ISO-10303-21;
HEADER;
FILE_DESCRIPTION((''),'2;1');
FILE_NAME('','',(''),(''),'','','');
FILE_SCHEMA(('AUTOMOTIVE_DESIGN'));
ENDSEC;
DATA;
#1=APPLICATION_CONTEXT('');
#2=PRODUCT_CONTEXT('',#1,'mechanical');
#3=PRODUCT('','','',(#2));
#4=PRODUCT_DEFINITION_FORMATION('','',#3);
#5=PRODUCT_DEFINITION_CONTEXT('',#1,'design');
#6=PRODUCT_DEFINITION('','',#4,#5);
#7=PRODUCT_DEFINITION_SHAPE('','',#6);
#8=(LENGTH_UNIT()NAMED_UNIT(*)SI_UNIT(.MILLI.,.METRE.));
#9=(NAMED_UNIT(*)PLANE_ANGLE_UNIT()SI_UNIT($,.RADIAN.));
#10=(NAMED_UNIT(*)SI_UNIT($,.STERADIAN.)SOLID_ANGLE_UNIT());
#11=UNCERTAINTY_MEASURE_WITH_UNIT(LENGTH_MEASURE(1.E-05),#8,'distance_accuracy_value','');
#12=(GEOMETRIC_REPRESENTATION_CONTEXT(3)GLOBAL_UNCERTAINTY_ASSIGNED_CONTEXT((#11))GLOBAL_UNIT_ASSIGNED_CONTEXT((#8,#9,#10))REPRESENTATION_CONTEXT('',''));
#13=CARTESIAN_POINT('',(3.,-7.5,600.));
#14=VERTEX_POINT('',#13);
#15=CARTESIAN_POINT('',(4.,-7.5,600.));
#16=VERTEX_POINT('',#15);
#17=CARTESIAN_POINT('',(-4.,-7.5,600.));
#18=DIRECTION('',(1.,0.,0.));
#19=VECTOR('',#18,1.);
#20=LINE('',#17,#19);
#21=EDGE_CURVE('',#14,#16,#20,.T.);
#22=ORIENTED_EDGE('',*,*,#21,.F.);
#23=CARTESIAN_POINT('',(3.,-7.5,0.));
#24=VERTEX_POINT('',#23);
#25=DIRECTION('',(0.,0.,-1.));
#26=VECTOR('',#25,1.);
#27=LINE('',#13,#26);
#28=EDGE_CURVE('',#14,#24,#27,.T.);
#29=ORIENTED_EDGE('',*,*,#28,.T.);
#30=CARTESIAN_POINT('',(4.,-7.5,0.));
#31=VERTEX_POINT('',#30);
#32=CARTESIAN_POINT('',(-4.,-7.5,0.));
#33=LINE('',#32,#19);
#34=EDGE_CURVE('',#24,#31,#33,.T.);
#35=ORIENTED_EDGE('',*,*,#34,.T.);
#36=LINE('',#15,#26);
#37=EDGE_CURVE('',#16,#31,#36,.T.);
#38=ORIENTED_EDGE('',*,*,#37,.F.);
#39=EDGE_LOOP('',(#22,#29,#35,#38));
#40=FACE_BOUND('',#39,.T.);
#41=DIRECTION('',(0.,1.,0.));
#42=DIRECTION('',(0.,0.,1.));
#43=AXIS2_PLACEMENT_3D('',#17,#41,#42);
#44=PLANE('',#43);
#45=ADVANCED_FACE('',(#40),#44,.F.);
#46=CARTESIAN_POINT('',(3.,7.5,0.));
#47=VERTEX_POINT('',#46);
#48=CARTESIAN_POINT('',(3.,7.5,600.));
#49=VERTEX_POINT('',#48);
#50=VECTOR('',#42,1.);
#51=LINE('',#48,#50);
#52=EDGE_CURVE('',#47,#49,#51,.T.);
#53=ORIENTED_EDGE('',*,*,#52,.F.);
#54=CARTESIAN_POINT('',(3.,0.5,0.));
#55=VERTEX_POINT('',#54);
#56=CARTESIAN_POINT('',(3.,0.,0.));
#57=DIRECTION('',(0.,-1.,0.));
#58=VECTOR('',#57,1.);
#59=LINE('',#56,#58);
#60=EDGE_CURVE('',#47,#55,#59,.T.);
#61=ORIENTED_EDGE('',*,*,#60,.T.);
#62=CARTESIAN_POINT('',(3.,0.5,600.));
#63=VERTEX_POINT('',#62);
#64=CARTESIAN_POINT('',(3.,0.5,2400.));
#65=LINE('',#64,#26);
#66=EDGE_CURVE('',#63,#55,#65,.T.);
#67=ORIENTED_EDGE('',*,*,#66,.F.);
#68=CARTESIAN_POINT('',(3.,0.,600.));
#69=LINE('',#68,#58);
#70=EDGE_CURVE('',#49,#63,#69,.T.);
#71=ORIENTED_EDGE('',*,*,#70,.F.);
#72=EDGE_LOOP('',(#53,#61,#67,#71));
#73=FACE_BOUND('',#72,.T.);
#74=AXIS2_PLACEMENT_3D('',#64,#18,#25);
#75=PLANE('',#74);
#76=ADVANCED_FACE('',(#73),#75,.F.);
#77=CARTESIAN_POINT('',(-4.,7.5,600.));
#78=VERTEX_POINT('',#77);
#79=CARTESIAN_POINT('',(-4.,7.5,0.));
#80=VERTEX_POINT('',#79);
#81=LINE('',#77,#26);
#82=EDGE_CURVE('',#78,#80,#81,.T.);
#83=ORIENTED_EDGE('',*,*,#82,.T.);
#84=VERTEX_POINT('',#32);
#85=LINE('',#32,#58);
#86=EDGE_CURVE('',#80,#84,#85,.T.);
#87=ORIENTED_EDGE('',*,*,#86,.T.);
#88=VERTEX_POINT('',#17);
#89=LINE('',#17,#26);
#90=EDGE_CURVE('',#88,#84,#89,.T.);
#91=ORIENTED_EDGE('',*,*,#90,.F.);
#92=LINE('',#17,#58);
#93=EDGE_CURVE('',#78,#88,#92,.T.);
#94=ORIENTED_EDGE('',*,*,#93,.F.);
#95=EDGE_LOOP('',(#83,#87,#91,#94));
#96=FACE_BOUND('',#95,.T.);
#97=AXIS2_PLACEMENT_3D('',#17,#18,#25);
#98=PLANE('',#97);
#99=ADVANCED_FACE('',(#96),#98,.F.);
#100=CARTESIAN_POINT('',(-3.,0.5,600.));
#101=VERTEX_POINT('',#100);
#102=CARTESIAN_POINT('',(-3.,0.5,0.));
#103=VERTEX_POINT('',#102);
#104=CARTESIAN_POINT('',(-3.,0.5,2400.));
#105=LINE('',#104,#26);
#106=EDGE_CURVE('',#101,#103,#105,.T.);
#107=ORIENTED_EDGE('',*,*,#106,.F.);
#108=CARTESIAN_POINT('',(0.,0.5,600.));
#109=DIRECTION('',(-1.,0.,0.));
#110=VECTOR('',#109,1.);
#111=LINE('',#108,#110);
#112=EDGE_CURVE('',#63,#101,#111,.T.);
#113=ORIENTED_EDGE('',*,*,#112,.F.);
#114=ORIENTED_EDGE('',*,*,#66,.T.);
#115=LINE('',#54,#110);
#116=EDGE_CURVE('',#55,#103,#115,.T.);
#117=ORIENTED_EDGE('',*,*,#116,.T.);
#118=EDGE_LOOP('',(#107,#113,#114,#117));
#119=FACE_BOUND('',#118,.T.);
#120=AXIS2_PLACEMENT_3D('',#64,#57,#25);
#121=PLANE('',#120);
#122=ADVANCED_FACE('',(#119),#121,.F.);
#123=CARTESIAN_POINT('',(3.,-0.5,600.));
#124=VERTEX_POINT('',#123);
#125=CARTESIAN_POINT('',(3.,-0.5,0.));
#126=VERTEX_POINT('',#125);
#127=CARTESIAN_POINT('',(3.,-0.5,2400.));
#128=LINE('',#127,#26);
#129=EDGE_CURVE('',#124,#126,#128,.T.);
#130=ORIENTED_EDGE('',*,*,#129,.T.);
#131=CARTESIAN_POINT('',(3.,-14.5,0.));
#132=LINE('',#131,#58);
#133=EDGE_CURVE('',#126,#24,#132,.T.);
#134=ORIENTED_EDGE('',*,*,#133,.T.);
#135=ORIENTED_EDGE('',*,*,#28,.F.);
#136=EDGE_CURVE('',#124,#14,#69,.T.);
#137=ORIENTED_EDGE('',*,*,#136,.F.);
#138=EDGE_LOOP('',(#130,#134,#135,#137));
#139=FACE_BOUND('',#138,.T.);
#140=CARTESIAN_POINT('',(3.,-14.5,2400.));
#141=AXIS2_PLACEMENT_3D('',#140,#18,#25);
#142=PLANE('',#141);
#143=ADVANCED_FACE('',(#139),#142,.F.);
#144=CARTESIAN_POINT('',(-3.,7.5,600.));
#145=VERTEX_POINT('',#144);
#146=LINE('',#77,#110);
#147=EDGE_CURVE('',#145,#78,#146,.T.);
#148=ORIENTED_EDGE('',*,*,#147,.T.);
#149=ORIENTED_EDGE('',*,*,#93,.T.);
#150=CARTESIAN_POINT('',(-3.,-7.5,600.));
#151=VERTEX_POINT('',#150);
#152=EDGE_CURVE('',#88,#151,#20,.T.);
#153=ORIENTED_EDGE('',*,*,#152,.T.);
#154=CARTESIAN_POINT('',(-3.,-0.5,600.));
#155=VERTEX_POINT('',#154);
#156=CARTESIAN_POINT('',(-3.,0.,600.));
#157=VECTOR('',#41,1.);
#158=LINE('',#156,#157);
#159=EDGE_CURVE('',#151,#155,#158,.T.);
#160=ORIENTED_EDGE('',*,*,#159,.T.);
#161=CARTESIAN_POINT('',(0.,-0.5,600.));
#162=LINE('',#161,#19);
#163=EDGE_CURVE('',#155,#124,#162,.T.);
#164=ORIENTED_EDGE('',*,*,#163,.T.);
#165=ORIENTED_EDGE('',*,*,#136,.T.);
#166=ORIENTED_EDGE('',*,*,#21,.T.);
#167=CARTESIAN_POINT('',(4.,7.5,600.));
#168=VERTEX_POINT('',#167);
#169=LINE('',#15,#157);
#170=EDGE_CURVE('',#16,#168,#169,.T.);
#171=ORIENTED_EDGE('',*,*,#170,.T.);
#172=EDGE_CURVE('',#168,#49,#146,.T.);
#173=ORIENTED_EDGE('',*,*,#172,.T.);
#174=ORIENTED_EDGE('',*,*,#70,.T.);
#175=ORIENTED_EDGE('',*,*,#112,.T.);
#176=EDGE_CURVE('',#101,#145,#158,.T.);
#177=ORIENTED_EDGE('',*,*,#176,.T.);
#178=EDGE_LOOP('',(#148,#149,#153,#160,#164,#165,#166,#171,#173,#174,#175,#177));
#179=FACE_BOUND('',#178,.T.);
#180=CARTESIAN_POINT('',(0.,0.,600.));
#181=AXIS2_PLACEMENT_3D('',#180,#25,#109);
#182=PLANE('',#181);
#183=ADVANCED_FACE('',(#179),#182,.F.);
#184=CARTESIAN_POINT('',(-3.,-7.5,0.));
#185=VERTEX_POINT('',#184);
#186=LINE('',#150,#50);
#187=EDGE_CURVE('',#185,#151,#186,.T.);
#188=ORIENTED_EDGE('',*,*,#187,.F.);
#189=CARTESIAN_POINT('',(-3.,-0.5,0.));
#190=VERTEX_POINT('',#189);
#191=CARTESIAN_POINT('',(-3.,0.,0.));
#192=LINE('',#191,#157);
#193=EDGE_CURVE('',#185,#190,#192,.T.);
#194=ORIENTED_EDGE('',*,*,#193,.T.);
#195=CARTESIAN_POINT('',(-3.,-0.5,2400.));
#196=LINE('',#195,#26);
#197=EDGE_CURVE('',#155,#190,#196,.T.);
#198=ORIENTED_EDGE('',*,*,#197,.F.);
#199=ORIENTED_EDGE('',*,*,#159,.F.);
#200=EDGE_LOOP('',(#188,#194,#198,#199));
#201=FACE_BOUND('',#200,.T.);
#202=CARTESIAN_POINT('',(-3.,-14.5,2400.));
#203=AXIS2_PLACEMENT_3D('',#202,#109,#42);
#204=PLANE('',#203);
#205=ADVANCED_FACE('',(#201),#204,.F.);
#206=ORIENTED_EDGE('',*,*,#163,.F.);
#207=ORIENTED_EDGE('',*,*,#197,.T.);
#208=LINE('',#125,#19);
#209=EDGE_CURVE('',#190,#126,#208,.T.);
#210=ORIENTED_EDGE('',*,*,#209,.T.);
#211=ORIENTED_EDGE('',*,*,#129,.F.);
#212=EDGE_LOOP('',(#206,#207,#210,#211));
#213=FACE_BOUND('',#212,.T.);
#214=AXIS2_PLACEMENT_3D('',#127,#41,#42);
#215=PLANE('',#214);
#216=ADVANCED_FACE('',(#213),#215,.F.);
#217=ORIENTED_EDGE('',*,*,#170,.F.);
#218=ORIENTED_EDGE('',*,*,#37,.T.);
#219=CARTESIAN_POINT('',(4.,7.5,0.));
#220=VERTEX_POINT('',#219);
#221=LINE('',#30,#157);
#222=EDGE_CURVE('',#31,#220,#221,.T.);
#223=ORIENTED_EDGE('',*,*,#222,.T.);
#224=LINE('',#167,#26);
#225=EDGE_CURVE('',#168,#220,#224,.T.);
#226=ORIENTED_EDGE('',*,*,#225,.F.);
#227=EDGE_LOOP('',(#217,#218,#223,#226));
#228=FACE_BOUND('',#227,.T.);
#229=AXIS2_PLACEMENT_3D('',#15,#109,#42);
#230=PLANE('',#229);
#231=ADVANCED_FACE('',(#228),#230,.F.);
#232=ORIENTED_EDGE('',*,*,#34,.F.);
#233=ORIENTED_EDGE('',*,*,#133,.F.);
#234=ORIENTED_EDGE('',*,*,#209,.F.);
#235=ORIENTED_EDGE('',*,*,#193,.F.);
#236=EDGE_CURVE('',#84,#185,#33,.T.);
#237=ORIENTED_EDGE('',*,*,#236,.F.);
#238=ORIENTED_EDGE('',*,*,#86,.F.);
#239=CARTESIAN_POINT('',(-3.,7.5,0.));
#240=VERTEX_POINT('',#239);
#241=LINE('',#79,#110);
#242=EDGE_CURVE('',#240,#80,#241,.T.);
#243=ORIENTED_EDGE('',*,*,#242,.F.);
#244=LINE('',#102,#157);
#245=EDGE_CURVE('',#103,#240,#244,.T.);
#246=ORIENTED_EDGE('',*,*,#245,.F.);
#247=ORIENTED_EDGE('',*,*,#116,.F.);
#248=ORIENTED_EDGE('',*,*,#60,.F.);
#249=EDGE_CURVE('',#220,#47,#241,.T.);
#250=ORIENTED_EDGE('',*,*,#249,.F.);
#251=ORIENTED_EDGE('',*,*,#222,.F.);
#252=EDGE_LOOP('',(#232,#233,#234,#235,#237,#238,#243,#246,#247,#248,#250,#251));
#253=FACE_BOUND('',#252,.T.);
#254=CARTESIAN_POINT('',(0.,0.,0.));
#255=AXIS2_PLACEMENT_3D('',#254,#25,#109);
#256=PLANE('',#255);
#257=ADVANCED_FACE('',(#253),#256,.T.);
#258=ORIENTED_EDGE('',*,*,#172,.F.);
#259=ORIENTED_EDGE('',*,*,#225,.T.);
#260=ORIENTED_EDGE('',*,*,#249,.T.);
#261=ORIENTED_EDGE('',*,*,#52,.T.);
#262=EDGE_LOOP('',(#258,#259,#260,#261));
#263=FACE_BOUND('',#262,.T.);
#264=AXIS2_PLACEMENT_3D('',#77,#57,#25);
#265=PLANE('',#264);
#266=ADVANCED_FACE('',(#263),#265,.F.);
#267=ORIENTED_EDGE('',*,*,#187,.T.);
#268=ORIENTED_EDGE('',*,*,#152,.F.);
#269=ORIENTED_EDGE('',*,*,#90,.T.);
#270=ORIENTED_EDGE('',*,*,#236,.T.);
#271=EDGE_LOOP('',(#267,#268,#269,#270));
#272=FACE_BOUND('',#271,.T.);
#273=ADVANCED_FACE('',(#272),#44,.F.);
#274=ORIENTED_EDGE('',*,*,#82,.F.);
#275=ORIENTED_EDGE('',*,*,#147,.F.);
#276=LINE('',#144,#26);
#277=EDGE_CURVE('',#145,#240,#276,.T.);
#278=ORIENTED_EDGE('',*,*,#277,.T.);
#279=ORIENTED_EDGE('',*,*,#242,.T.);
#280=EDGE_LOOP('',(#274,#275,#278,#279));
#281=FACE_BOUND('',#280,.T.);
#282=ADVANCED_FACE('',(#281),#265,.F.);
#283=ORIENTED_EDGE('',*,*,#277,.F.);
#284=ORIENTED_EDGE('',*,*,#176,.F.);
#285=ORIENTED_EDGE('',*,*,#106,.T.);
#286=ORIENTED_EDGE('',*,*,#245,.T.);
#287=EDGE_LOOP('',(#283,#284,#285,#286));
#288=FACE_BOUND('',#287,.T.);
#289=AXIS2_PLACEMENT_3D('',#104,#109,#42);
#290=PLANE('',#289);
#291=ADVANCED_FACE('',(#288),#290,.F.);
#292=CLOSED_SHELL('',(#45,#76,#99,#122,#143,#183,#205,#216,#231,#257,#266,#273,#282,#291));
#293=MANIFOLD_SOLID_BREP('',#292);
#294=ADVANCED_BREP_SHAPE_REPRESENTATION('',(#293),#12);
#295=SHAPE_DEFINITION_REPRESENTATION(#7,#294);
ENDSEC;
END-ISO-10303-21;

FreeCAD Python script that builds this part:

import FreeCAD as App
import Part
import Sketcher

doc = App.newDocument("Part")
body = doc.addObject("PartDesign::Body", "Body")

sketch1 = body.newObject("Sketcher::SketchObject", "Sketch")
sketch1.AttachmentSupport = (doc.getObject("XY_Plane"), [""])
sketch1.MapMode = "FlatFace"
sketch1.addGeometry([
    Part.LineSegment(App.Vector(-4, 7.5, 0), App.Vector(-4, -7.5, 0)),
    Part.LineSegment(App.Vector(-4, -7.5, 0), App.Vector(4, -7.5, 0)),
    Part.LineSegment(App.Vector(4, -7.5, 0), App.Vector(4, 7.5, 0)),
    Part.LineSegment(App.Vector(4, 7.5, 0), App.Vector(-4, 7.5, 0)),
], False)
sketch1.addConstraint([
    Sketcher.Constraint("Coincident", 0, 2, 1, 1),
    Sketcher.Constraint("Coincident", 1, 2, 2, 1),
    Sketcher.Constraint("Coincident", 2, 2, 3, 1),
    Sketcher.Constraint("Coincident", 3, 2, 0, 1),
    Sketcher.Constraint("Vertical", 0),
    Sketcher.Constraint("Horizontal", 1),
    Sketcher.Constraint("Vertical", 2),
    Sketcher.Constraint("Horizontal", 3),
    Sketcher.Constraint("Symmetric", 0, 2, 2, 2, -1, 1),
    Sketcher.Constraint("DistanceX", 1, 1, 1, 2, 8.0),
    Sketcher.Constraint("DistanceY", 0, 2, 0, 1, 15.0),
])
pad1 = body.newObject("PartDesign::Pad", "Pad")
pad1.Profile = sketch1
pad1.Length = 600

sketch2 = body.newObject("Sketcher::SketchObject", "Sketch001")
sketch2.AttachmentSupport = (doc.getObject("XY_Plane"), [""])
sketch2.MapMode = "FlatFace"
sketch2.addGeometry([
    Part.LineSegment(App.Vector(3, -0.5, 0), App.Vector(3, -14.5, 0)),
    Part.LineSegment(App.Vector(3, -14.5, 0), App.Vector(-3, -14.5, 0)),
    Part.LineSegment(App.Vector(-3, -14.5, 0), App.Vector(-3, -0.5, 0)),
    Part.LineSegment(App.Vector(-3, -0.5, 0), App.Vector(3, -0.5, 0)),
    Part.LineSegment(App.Vector(3, 14.5, 0), App.Vector(3, 0.5, 0)),
    Part.LineSegment(App.Vector(3, 0.5, 0), App.Vector(-3, 0.5, 0)),
    Part.LineSegment(App.Vector(-3, 0.5, 0), App.Vector(-3, 14.5, 0)),
    Part.LineSegment(App.Vector(-3, 14.5, 0), App.Vector(3, 14.5, 0)),
], False)
sketch2.addConstraint([
    Sketcher.Constraint("Coincident", 0, 2, 1, 1),
    Sketcher.Constraint("Coincident", 1, 2, 2, 1),
    Sketcher.Constraint("Coincident", 2, 2, 3, 1),
    Sketcher.Constraint("Coincident", 3, 2, 0, 1),
    Sketcher.Constraint("Coincident", 4, 2, 5, 1),
    Sketcher.Constraint("Coincident", 5, 2, 6, 1),
    Sketcher.Constraint("Coincident", 6, 2, 7, 1),
    Sketcher.Constraint("Coincident", 7, 2, 4, 1),
    Sketcher.Constraint("Vertical", 0),
    Sketcher.Constraint("Horizontal", 1),
    Sketcher.Constraint("Vertical", 2),
    Sketcher.Constraint("Horizontal", 3),
    Sketcher.Constraint("Vertical", 4),
    Sketcher.Constraint("Horizontal", 5),
    Sketcher.Constraint("Vertical", 6),
    Sketcher.Constraint("Horizontal", 7),
    Sketcher.Constraint("Symmetric", 2, 2, 4, 2, -1, 1),
    Sketcher.Constraint("Symmetric", 0, 2, 6, 2, -1, 1),
    Sketcher.Constraint("Vertical", 3, 2, 4, 2),
    Sketcher.Constraint("DistanceX", 1, 2, 1, 1, 6.0),
    Sketcher.Constraint("DistanceY", 0, 2, 0, 1, 14.0),
    Sketcher.Constraint("DistanceY", 3, 2, 4, 2, 1.0),
])
pocket1 = body.newObject("PartDesign::Pocket", "Pocket")
pocket1.Profile = sketch2
pocket1.Length = 2400
pocket1.Reversed = True

doc.recompute()
